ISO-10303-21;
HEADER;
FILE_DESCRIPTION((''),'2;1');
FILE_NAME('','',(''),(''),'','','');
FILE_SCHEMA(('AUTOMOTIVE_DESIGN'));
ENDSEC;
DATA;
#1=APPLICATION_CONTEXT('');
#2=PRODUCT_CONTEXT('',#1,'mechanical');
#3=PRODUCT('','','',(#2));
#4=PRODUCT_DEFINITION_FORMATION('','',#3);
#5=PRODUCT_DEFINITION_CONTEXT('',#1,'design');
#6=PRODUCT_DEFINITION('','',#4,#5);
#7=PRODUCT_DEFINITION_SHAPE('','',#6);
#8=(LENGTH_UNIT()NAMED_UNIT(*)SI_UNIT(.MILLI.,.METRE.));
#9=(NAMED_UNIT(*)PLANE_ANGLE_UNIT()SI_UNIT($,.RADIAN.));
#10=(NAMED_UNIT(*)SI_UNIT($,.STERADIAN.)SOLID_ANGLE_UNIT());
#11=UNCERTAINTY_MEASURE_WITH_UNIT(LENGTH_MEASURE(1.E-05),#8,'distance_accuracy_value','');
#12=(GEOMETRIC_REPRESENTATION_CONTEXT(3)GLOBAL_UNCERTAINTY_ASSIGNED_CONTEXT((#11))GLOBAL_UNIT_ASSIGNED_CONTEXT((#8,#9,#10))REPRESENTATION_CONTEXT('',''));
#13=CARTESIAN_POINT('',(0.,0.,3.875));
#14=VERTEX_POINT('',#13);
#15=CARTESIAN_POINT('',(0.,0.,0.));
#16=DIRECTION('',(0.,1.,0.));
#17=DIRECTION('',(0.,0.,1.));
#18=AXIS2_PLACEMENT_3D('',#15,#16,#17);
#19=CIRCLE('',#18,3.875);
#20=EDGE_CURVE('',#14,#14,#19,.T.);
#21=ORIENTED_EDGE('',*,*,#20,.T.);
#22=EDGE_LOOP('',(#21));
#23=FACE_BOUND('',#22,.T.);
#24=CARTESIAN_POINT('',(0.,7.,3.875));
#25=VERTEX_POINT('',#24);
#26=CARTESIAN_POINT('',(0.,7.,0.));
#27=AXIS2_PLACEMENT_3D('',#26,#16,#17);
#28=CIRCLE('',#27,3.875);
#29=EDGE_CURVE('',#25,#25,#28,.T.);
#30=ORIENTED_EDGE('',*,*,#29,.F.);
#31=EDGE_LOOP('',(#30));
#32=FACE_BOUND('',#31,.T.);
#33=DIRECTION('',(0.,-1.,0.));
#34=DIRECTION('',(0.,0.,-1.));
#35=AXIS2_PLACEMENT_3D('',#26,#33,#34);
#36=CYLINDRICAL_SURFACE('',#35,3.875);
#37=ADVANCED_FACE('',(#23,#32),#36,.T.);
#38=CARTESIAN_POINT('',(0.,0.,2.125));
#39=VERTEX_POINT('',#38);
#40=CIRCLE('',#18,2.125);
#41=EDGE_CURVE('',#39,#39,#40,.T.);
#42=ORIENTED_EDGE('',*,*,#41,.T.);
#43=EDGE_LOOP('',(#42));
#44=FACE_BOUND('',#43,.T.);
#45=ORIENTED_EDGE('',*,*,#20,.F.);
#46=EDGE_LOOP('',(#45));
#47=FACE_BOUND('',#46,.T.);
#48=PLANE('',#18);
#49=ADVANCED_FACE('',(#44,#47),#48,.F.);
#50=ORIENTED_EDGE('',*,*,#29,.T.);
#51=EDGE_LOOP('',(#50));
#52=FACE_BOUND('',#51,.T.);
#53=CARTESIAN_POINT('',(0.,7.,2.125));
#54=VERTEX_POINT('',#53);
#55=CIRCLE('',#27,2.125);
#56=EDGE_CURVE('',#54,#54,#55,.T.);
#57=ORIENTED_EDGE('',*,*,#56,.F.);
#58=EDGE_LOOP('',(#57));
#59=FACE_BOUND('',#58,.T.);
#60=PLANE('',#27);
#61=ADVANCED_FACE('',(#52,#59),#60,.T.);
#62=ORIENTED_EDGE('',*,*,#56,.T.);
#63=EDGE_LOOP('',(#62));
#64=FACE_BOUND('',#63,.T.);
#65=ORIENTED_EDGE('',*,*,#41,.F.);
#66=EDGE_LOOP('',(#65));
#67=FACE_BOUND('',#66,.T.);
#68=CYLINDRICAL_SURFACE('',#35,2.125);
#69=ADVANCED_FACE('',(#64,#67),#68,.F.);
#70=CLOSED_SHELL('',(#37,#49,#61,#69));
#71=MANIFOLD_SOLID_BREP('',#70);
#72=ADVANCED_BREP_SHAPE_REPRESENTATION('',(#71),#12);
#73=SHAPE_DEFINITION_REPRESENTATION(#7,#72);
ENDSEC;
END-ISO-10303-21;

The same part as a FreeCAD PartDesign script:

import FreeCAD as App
import Part
import Sketcher

doc = App.newDocument("Part")
body = doc.addObject("PartDesign::Body", "Body")

sketch1 = doc.addObject("Sketcher::SketchObject", "Sketch")
body.addObject(sketch1)
sketch1.AttachmentSupport = (doc.XZ_Plane, [""])
sketch1.MapMode = "FlatFace"
sketch1.addGeometry(Part.Circle(App.Vector(0, 0, 0), App.Vector(0, 0, 1), 3.9), False)
sketch1.addGeometry(Part.Circle(App.Vector(0, 0, 0), App.Vector(0, 0, 1), 2.1), False)
sketch1.addConstraint(Sketcher.Constraint("Coincident", 0, 3, -1, 1))
sketch1.addConstraint(Sketcher.Constraint("Coincident", 1, 3, -1, 1))
sketch1.addConstraint(Sketcher.Constraint("Diameter", 0, 7.75))
sketch1.addConstraint(Sketcher.Constraint("Diameter", 1, 4.25))
pad1 = doc.addObject("PartDesign::Pad", "Pad")
body.addObject(pad1)
pad1.Profile = sketch1
pad1.Length = 7
pad1.Reversed = True

doc.recompute()
